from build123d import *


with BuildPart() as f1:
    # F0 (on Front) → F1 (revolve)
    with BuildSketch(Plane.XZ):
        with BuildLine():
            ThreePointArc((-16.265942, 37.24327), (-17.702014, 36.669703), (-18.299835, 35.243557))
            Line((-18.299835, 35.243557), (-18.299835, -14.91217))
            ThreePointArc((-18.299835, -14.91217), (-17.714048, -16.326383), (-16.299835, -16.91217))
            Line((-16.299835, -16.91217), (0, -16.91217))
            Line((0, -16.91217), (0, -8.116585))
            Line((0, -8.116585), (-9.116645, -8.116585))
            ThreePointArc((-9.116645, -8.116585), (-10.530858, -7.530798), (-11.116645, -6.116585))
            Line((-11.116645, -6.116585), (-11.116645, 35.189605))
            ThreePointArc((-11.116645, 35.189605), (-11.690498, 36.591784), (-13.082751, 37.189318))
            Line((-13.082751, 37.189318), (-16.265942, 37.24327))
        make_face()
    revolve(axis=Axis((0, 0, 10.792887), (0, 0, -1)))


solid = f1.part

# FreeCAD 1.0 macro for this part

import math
import FreeCAD as App
import Part
import Sketcher

doc = App.newDocument("Part")
body = doc.addObject("PartDesign::Body", "Body")

# Sketch on XZ plane
sketch1 = body.newObject("Sketcher::SketchObject", "Sketch")
sketch1.AttachmentSupport = (doc.getObject("XZ_Plane"), [""])
sketch1.MapMode = "FlatFace"
sketch1.addGeometry(Part.ArcOfCircle(Part.Circle(App.Vector(-16.299834, 35.243556, 0), App.Vector(0, 0, 1), 2.000001), math.radians(89.029029), math.radians(179.999968)), False)
sketch1.addGeometry(Part.LineSegment(App.Vector(-18.299835, 35.243557, 0), App.Vector(-18.299835, -14.91217, 0)), False)
sketch1.addGeometry(Part.ArcOfCircle(Part.Circle(App.Vector(-16.299833, -14.912168, 0), App.Vector(0, 0, 1), 2.000002), math.radians(-179.999945), math.radians(-90.000055)), False)
sketch1.addGeometry(Part.LineSegment(App.Vector(-16.299835, -16.91217, 0), App.Vector(0, -16.91217, 0)), False)
sketch1.addGeometry(Part.LineSegment(App.Vector(0, -16.91217, 0), App.Vector(0, -8.116585, 0)), False)
sketch1.addGeometry(Part.LineSegment(App.Vector(0, -8.116585, 0), App.Vector(-9.116645, -8.116585, 0)), False)
sketch1.addGeometry(Part.ArcOfCircle(Part.Circle(App.Vector(-9.116643, -6.116583, 0), App.Vector(0, 0, 1), 2.000002), math.radians(-179.999945), math.radians(-90.000055)), False)
sketch1.addGeometry(Part.LineSegment(App.Vector(-11.116645, -6.116585, 0), App.Vector(-11.116645, 35.189605, 0)), False)
sketch1.addGeometry(Part.ArcOfCircle(Part.Circle(App.Vector(-13.116645, 35.189606, 0), App.Vector(0, 0, 1), 2), math.radians(-0.000017), math.radians(89.028972)), False)
sketch1.addGeometry(Part.LineSegment(App.Vector(-13.082751, 37.189318, 0), App.Vector(-16.265942, 37.24327, 0)), False)
sketch1.addConstraint(Sketcher.Constraint("Coincident", 0, 2, 1, 1))
sketch1.addConstraint(Sketcher.Constraint("Coincident", 1, 2, 2, 1))
sketch1.addConstraint(Sketcher.Constraint("Coincident", 2, 2, 3, 1))
sketch1.addConstraint(Sketcher.Constraint("Coincident", 3, 2, 4, 1))
sketch1.addConstraint(Sketcher.Constraint("Coincident", 4, 2, 5, 1))
sketch1.addConstraint(Sketcher.Constraint("Coincident", 5, 2, 6, 2))
sketch1.addConstraint(Sketcher.Constraint("Coincident", 6, 1, 7, 1))
sketch1.addConstraint(Sketcher.Constraint("Coincident", 7, 2, 8, 1))
sketch1.addConstraint(Sketcher.Constraint("Coincident", 8, 2, 9, 1))
sketch1.addConstraint(Sketcher.Constraint("Coincident", 9, 2, 0, 1))
sketch1.addConstraint(Sketcher.Constraint("Vertical", 1))
sketch1.addConstraint(Sketcher.Constraint("Horizontal", 3))
sketch1.addConstraint(Sketcher.Constraint("Vertical", 4))
sketch1.addConstraint(Sketcher.Constraint("Horizontal", 5))
sketch1.addConstraint(Sketcher.Constraint("Vertical", 7))
sketch1.addConstraint(Sketcher.Constraint("PointOnObject", 3, 2, -2))
sketch1.addConstraint(Sketcher.Constraint("Radius", 0, 2.000001))
sketch1.addConstraint(Sketcher.Constraint("Radius", 2, 2.000002))
sketch1.addConstraint(Sketcher.Constraint("Radius", 6, 2.000002))
sketch1.addConstraint(Sketcher.Constraint("Radius", 8, 2.0))
sketch1.addConstraint(Sketcher.Constraint("DistanceX", 1, 2, 2, 2, 2.0))
sketch1.addConstraint(Sketcher.Constraint("DistanceY", 2, 2, 1, 2, 2.0))
sketch1.addConstraint(Sketcher.Constraint("DistanceX", 6, 1, 5, 2, 2.0))
sketch1.addConstraint(Sketcher.Constraint("DistanceY", 5, 2, 6, 1, 2.0))
sketch1.addConstraint(Sketcher.Constraint("DistanceY", 7, 1, 7, 2, 41.30619))
sketch1.addConstraint(Sketcher.Constraint("Distance", 9, 3.183648))
sketch1.addConstraint(Sketcher.Constraint("DistanceX", 3, 1, 3, 2, 16.299835))
sketch1.addConstraint(Sketcher.Constraint("DistanceX", 5, 2, 5, 1, 9.116645))
sketch1.addConstraint(Sketcher.Constraint("DistanceY", 1, 2, 1, 1, 50.155727))
sketch1.addConstraint(Sketcher.Constraint("DistanceY", 4, 1, 4, 2, 8.795585))
sketch1.addConstraint(Sketcher.Constraint("DistanceY", 2, 3, -1, 1, 14.912168))
sketch1.addConstraint(Sketcher.Constraint("DistanceX", 8, 2, -1, 1, 13.082751))
sketch1.addConstraint(Sketcher.Constraint("DistanceX", 9, 2, -1, 1, 16.265942))
sketch1.addConstraint(Sketcher.Constraint("DistanceY", -1, 1, 9, 2, 37.24327))
revolution = body.newObject("PartDesign::Revolution", "Revolution")
revolution.Profile = sketch1
revolution.ReferenceAxis = (sketch1, ["V_Axis"])
revolution.Angle = 360

doc.recompute()
